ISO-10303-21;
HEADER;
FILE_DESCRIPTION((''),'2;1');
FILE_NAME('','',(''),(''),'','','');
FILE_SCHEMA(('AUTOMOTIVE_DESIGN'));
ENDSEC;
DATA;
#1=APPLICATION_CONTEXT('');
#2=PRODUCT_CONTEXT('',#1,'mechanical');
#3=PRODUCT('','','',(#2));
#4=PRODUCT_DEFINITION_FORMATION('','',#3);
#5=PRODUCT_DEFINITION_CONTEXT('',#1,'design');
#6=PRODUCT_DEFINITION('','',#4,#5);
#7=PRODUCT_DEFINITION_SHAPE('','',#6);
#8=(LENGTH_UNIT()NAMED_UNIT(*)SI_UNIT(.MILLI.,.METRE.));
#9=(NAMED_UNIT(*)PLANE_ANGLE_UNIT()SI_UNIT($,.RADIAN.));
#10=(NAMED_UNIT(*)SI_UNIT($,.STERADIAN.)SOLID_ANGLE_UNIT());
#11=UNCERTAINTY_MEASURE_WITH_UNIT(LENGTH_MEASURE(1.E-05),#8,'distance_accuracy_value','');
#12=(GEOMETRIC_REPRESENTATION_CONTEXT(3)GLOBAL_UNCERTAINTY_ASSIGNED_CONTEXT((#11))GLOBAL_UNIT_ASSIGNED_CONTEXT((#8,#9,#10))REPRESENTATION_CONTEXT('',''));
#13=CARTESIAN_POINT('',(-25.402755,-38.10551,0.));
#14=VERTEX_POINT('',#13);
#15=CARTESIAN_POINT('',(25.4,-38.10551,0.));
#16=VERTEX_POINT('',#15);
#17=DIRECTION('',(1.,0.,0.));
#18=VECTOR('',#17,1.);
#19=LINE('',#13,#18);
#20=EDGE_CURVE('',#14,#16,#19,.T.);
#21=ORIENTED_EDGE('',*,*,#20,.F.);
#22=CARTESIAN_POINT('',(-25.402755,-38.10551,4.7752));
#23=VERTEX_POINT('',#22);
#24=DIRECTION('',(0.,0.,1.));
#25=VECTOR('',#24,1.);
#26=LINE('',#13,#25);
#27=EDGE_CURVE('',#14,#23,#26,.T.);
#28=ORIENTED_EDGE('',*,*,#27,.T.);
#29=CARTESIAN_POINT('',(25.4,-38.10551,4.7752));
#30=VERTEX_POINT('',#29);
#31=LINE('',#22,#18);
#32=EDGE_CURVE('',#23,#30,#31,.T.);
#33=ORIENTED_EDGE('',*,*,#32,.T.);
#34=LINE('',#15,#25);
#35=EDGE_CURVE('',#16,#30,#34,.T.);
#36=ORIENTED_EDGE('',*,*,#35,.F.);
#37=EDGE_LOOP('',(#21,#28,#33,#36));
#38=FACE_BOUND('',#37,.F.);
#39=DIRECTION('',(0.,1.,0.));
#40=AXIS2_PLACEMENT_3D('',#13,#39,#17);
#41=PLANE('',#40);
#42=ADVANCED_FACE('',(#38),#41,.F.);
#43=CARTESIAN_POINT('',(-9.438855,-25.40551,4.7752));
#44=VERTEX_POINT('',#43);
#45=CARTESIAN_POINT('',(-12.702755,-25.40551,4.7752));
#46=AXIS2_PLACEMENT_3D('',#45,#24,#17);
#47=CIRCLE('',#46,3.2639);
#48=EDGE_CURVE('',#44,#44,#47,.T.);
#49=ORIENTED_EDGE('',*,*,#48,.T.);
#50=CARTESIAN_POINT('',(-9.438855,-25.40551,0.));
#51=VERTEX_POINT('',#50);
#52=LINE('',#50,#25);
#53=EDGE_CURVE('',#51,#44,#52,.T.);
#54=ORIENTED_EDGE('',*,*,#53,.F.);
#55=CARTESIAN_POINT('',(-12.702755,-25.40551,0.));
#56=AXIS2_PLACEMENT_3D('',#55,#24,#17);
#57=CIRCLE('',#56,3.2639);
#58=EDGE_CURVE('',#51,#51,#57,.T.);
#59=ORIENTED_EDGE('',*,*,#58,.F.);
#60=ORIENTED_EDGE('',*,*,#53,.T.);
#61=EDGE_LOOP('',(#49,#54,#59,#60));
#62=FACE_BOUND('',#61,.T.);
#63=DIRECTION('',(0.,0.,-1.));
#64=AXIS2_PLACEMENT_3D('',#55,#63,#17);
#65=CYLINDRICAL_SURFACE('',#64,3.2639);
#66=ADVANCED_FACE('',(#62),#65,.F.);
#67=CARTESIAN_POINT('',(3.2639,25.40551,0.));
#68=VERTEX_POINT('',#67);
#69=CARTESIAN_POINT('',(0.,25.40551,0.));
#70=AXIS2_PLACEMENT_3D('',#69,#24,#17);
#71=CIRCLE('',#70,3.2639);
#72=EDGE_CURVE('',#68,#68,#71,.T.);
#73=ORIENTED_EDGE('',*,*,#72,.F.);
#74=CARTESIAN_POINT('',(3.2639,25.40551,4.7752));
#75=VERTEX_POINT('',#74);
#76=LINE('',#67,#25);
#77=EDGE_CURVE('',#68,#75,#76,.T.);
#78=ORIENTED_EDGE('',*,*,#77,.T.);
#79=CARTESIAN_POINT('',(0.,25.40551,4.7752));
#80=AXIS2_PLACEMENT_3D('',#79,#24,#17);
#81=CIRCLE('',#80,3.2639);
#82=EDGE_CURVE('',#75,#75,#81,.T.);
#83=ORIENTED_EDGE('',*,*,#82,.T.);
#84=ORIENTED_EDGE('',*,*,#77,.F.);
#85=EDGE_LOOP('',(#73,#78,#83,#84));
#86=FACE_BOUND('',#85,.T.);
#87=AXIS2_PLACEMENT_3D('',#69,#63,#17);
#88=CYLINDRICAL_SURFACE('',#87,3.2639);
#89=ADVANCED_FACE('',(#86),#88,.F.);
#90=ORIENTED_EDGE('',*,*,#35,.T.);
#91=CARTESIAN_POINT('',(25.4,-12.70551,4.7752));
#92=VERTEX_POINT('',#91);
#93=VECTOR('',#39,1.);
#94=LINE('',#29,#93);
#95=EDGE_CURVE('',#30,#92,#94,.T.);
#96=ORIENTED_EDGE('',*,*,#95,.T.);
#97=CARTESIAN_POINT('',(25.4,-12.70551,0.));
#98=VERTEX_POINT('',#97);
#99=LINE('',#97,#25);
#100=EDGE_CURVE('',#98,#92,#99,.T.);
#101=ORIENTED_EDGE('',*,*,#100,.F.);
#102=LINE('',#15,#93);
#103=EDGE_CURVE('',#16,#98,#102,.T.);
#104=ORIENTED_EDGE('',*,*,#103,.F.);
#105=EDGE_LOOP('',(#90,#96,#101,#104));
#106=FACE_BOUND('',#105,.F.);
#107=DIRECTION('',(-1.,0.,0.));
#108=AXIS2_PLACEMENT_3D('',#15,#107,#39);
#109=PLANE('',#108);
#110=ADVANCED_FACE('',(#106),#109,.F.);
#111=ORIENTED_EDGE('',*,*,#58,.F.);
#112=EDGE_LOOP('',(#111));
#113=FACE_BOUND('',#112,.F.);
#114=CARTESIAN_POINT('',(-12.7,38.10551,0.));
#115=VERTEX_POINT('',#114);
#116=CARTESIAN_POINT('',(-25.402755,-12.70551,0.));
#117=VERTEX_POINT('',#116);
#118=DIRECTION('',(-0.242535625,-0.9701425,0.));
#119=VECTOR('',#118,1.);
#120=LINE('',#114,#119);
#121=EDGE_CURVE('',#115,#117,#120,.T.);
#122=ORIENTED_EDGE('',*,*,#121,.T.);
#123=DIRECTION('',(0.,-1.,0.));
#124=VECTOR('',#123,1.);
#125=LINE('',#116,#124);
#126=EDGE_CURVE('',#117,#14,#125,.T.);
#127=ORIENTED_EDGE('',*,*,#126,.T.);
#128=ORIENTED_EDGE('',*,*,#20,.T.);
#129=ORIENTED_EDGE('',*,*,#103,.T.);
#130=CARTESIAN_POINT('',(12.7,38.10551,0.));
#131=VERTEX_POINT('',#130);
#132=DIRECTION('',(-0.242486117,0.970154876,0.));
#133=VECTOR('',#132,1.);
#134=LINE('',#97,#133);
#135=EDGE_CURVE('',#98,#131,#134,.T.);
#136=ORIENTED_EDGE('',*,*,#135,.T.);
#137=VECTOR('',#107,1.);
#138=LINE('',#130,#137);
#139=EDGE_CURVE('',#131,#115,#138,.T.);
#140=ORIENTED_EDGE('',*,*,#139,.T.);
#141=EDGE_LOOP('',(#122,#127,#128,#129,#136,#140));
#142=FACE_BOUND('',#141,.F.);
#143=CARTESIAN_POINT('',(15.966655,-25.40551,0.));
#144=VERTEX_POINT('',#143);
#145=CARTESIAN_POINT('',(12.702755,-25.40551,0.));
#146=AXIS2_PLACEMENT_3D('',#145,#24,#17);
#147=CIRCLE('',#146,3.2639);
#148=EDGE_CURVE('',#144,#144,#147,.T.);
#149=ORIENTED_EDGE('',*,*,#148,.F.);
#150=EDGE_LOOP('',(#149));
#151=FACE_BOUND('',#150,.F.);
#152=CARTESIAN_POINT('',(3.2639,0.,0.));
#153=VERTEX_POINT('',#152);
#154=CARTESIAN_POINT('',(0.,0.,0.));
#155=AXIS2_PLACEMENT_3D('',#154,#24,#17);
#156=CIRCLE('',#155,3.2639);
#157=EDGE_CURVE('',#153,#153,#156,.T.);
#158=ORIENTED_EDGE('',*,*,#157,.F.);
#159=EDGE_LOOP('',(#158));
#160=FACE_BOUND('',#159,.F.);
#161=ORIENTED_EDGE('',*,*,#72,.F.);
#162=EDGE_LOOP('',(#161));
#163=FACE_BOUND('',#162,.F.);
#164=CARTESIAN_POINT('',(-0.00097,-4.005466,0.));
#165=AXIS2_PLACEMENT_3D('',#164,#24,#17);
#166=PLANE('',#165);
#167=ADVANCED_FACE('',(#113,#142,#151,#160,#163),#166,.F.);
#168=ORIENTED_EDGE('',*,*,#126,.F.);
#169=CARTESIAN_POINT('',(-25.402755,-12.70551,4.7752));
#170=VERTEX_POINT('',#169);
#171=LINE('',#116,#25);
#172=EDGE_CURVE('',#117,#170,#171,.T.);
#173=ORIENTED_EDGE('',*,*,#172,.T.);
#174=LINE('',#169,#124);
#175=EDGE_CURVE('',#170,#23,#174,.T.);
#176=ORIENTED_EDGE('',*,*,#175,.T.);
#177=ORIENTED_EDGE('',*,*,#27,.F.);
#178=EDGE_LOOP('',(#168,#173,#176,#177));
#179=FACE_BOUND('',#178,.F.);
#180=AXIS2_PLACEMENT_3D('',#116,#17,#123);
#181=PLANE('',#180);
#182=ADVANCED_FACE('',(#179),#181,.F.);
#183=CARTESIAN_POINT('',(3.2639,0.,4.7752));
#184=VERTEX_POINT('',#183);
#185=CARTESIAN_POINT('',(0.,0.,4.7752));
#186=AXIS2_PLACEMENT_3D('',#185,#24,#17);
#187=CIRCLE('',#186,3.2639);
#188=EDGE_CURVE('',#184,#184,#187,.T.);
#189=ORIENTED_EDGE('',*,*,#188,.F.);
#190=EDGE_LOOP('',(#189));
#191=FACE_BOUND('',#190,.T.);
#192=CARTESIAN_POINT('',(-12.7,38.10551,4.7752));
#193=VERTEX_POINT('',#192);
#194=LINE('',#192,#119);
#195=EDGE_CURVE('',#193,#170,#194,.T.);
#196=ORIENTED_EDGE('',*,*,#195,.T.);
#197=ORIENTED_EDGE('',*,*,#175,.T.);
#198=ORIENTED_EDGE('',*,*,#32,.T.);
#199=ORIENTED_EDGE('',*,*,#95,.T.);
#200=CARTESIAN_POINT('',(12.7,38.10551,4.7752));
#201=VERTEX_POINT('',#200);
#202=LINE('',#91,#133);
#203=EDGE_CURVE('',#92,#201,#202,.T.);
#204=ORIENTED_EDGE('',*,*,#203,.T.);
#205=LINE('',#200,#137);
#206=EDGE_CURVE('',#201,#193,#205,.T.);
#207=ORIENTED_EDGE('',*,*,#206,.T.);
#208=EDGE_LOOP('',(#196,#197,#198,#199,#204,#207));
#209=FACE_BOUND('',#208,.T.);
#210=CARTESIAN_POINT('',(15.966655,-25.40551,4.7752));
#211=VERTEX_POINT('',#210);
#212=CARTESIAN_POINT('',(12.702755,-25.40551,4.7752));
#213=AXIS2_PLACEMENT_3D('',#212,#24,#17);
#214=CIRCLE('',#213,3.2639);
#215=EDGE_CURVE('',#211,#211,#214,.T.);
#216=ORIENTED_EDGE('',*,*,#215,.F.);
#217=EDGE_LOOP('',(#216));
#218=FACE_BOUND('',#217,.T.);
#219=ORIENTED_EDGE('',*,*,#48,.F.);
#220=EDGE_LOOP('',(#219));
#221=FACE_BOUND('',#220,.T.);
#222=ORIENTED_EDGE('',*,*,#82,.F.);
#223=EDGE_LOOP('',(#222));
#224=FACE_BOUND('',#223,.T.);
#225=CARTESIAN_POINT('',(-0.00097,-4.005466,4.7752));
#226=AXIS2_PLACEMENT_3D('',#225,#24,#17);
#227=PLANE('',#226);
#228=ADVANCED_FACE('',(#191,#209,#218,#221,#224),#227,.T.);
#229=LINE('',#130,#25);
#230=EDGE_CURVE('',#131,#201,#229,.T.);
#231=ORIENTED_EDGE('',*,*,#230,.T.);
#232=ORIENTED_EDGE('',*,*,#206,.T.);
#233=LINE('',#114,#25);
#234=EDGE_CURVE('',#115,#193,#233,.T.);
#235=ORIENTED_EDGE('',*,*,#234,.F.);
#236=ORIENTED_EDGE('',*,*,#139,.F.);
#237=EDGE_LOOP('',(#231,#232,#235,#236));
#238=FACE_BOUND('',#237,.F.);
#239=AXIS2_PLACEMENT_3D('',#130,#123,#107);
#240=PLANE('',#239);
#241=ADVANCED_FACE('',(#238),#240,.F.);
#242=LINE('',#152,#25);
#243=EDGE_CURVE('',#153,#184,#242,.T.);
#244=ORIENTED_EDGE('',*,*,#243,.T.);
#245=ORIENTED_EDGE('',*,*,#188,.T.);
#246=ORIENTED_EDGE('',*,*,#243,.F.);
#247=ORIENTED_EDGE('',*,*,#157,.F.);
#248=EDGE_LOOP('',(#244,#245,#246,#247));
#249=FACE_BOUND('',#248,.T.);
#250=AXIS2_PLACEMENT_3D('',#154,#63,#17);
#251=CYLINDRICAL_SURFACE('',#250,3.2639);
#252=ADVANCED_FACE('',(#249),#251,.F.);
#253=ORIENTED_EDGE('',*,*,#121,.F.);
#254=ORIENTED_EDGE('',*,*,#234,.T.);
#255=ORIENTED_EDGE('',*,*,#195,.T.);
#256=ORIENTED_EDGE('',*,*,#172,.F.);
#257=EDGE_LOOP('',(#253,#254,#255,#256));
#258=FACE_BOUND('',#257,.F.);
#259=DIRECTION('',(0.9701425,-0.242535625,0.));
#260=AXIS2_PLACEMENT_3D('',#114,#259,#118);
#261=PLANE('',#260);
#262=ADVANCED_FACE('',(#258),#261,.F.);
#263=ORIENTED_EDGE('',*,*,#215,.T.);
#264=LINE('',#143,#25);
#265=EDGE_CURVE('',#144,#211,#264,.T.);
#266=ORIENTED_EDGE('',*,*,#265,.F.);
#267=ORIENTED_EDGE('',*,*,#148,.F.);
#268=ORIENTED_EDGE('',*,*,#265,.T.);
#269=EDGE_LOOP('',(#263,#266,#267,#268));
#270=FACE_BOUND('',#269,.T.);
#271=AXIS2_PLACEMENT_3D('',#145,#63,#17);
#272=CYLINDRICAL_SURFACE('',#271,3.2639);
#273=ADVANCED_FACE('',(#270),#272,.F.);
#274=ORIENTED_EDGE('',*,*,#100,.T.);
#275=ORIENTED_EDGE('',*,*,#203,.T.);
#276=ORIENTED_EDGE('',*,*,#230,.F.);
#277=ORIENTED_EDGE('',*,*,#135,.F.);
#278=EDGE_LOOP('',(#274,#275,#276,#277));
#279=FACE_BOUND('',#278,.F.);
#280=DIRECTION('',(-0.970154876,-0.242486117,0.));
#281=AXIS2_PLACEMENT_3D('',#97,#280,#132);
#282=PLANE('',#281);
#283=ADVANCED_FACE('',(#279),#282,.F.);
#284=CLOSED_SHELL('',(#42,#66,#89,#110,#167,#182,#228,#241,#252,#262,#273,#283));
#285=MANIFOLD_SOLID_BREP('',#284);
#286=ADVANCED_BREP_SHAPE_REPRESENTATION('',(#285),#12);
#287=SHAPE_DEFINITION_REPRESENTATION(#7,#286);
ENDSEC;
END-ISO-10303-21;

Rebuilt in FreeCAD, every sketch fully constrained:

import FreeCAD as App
import Part
import Sketcher
from FreeCAD import Vector
Q = App.Units.Quantity

doc = App.newDocument("Part")
params = doc.addObject("Spreadsheet::Sheet", "Params")
for row, (alias, value) in enumerate([
    ("sketch1_width", "1 in"),
    ("sketch1_diameter", "0.257 in"),
    ("sketch1_length", "2.062 in"),
    ("pad1_length", "0.188 in"),
], start=1):
    params.set(f"A{row}", alias)
    params.set(f"B{row}", "=" + value)
    params.setAlias(f"B{row}", alias)

body = doc.addObject("PartDesign::Body", "Body")

# Sketch on XY plane
sketch1 = body.newObject("Sketcher::SketchObject", "Sketch")
sketch1.AttachmentSupport = (doc.getObject("XY_Plane"), [""])
sketch1.MapMode = "FlatFace"
sketch1.addGeometry(Part.LineSegment(Vector(25.4, -12.7, 0), Vector(12.7, 38.1, 0)), False)
sketch1.addGeometry(Part.LineSegment(Vector(12.7, 38.1, 0), Vector(-12.7, 38.1, 0)), False)
sketch1.addGeometry(Part.LineSegment(Vector(-12.7, 38.1, 0), Vector(-25.4, -12.7, 0)), False)
sketch1.addGeometry(Part.LineSegment(Vector(-25.4, -12.7, 0), Vector(-25.4, -38.1, 0)), False)
sketch1.addGeometry(Part.LineSegment(Vector(-25.4, -38.1, 0), Vector(25.4, -38.1, 0)), False)
sketch1.addGeometry(Part.LineSegment(Vector(25.4, -38.1, 0), Vector(25.4, -12.7, 0)), False)
sketch1.addGeometry(Part.Circle(Vector(-12.7, -25.4, 0), Vector(0, 0, 1), 3.3), False)
sketch1.addGeometry(Part.Circle(Vector(0, 0, 0), Vector(0, 0, 1), 3.3), False)
sketch1.addGeometry(Part.Circle(Vector(12.7, -25.4, 0), Vector(0, 0, 1), 3.3), False)
sketch1.addGeometry(Part.Circle(Vector(0, 25.4, 0), Vector(0, 0, 1), 3.3), False)
sketch1.addConstraint(Sketcher.Constraint("Coincident", 0, 2, 1, 1))
sketch1.addConstraint(Sketcher.Constraint("Coincident", 1, 2, 2, 1))
sketch1.addConstraint(Sketcher.Constraint("Coincident", 2, 2, 3, 1))
sketch1.addConstraint(Sketcher.Constraint("Coincident", 3, 2, 4, 1))
sketch1.addConstraint(Sketcher.Constraint("Coincident", 4, 2, 5, 1))
sketch1.addConstraint(Sketcher.Constraint("Coincident", 5, 2, 0, 1))
sketch1.addConstraint(Sketcher.Constraint("Horizontal", 1))
sketch1.addConstraint(Sketcher.Constraint("Vertical", 3))
sketch1.addConstraint(Sketcher.Constraint("Horizontal", 4))
sketch1.addConstraint(Sketcher.Constraint("Vertical", 5))
sketch1.addConstraint(Sketcher.Constraint("Coincident", 7, 3, -1, 1))
sketch1.addConstraint(Sketcher.Constraint("Equal", 6, 7))
sketch1.addConstraint(Sketcher.Constraint("Equal", 7, 8))
sketch1.addConstraint(Sketcher.Constraint("Equal", 8, 9))
sketch1.addConstraint(Sketcher.Constraint("Symmetric", 6, 3, 8, 3, -2))
sketch1.addConstraint(Sketcher.Constraint("PointOnObject", 9, 3, -2))
sketch1.addConstraint(Sketcher.Constraint("Horizontal", 2, 2, 5, 2))
sketch1.addConstraint(Sketcher.Constraint("Equal", 1, 3))
sketch1.addConstraint(Sketcher.Constraint("DistanceX", 1, 2, 1, 1, Q("1 in")))
sketch1.addConstraint(Sketcher.Constraint("Diameter", 6, Q("0.257 in")))
sketch1.addConstraint(Sketcher.Constraint("DistanceX", -1, 1, 4, 2, Q("1 in")))
sketch1.addConstraint(Sketcher.Constraint("DistanceX", -1, 1, 0, 2, Q("0.5 in")))
sketch1.addConstraint(Sketcher.Constraint("DistanceY", 9, 3, 0, 2, Q("0.5 in")))
sketch1.addConstraint(Sketcher.Constraint("DistanceX", 2, 2, 6, 3, Q("0.5 in")))
sketch1.addConstraint(Sketcher.Constraint("DistanceY", 6, 3, 2, 2, Q("0.5 in")))
sketch1.addConstraint(Sketcher.Constraint("Distance", 2, Q("2.062 in")))
sketch1.addConstraint(Sketcher.Constraint("DistanceX", 4, 1, 4, 2, 50.802755))
sketch1.addConstraint(Sketcher.Constraint("DistanceY", 6, 3, -1, 1, 25.40551))
sketch1.setExpression("Constraints[18]", "Params.sketch1_width")
sketch1.setExpression("Constraints[19]", "Params.sketch1_diameter")
sketch1.setExpression("Constraints[25]", "Params.sketch1_length")
pad1 = body.newObject("PartDesign::Pad", "Pad")
pad1.Profile = sketch1
pad1.setExpression("Length", "Params.pad1_length")

doc.recompute()
